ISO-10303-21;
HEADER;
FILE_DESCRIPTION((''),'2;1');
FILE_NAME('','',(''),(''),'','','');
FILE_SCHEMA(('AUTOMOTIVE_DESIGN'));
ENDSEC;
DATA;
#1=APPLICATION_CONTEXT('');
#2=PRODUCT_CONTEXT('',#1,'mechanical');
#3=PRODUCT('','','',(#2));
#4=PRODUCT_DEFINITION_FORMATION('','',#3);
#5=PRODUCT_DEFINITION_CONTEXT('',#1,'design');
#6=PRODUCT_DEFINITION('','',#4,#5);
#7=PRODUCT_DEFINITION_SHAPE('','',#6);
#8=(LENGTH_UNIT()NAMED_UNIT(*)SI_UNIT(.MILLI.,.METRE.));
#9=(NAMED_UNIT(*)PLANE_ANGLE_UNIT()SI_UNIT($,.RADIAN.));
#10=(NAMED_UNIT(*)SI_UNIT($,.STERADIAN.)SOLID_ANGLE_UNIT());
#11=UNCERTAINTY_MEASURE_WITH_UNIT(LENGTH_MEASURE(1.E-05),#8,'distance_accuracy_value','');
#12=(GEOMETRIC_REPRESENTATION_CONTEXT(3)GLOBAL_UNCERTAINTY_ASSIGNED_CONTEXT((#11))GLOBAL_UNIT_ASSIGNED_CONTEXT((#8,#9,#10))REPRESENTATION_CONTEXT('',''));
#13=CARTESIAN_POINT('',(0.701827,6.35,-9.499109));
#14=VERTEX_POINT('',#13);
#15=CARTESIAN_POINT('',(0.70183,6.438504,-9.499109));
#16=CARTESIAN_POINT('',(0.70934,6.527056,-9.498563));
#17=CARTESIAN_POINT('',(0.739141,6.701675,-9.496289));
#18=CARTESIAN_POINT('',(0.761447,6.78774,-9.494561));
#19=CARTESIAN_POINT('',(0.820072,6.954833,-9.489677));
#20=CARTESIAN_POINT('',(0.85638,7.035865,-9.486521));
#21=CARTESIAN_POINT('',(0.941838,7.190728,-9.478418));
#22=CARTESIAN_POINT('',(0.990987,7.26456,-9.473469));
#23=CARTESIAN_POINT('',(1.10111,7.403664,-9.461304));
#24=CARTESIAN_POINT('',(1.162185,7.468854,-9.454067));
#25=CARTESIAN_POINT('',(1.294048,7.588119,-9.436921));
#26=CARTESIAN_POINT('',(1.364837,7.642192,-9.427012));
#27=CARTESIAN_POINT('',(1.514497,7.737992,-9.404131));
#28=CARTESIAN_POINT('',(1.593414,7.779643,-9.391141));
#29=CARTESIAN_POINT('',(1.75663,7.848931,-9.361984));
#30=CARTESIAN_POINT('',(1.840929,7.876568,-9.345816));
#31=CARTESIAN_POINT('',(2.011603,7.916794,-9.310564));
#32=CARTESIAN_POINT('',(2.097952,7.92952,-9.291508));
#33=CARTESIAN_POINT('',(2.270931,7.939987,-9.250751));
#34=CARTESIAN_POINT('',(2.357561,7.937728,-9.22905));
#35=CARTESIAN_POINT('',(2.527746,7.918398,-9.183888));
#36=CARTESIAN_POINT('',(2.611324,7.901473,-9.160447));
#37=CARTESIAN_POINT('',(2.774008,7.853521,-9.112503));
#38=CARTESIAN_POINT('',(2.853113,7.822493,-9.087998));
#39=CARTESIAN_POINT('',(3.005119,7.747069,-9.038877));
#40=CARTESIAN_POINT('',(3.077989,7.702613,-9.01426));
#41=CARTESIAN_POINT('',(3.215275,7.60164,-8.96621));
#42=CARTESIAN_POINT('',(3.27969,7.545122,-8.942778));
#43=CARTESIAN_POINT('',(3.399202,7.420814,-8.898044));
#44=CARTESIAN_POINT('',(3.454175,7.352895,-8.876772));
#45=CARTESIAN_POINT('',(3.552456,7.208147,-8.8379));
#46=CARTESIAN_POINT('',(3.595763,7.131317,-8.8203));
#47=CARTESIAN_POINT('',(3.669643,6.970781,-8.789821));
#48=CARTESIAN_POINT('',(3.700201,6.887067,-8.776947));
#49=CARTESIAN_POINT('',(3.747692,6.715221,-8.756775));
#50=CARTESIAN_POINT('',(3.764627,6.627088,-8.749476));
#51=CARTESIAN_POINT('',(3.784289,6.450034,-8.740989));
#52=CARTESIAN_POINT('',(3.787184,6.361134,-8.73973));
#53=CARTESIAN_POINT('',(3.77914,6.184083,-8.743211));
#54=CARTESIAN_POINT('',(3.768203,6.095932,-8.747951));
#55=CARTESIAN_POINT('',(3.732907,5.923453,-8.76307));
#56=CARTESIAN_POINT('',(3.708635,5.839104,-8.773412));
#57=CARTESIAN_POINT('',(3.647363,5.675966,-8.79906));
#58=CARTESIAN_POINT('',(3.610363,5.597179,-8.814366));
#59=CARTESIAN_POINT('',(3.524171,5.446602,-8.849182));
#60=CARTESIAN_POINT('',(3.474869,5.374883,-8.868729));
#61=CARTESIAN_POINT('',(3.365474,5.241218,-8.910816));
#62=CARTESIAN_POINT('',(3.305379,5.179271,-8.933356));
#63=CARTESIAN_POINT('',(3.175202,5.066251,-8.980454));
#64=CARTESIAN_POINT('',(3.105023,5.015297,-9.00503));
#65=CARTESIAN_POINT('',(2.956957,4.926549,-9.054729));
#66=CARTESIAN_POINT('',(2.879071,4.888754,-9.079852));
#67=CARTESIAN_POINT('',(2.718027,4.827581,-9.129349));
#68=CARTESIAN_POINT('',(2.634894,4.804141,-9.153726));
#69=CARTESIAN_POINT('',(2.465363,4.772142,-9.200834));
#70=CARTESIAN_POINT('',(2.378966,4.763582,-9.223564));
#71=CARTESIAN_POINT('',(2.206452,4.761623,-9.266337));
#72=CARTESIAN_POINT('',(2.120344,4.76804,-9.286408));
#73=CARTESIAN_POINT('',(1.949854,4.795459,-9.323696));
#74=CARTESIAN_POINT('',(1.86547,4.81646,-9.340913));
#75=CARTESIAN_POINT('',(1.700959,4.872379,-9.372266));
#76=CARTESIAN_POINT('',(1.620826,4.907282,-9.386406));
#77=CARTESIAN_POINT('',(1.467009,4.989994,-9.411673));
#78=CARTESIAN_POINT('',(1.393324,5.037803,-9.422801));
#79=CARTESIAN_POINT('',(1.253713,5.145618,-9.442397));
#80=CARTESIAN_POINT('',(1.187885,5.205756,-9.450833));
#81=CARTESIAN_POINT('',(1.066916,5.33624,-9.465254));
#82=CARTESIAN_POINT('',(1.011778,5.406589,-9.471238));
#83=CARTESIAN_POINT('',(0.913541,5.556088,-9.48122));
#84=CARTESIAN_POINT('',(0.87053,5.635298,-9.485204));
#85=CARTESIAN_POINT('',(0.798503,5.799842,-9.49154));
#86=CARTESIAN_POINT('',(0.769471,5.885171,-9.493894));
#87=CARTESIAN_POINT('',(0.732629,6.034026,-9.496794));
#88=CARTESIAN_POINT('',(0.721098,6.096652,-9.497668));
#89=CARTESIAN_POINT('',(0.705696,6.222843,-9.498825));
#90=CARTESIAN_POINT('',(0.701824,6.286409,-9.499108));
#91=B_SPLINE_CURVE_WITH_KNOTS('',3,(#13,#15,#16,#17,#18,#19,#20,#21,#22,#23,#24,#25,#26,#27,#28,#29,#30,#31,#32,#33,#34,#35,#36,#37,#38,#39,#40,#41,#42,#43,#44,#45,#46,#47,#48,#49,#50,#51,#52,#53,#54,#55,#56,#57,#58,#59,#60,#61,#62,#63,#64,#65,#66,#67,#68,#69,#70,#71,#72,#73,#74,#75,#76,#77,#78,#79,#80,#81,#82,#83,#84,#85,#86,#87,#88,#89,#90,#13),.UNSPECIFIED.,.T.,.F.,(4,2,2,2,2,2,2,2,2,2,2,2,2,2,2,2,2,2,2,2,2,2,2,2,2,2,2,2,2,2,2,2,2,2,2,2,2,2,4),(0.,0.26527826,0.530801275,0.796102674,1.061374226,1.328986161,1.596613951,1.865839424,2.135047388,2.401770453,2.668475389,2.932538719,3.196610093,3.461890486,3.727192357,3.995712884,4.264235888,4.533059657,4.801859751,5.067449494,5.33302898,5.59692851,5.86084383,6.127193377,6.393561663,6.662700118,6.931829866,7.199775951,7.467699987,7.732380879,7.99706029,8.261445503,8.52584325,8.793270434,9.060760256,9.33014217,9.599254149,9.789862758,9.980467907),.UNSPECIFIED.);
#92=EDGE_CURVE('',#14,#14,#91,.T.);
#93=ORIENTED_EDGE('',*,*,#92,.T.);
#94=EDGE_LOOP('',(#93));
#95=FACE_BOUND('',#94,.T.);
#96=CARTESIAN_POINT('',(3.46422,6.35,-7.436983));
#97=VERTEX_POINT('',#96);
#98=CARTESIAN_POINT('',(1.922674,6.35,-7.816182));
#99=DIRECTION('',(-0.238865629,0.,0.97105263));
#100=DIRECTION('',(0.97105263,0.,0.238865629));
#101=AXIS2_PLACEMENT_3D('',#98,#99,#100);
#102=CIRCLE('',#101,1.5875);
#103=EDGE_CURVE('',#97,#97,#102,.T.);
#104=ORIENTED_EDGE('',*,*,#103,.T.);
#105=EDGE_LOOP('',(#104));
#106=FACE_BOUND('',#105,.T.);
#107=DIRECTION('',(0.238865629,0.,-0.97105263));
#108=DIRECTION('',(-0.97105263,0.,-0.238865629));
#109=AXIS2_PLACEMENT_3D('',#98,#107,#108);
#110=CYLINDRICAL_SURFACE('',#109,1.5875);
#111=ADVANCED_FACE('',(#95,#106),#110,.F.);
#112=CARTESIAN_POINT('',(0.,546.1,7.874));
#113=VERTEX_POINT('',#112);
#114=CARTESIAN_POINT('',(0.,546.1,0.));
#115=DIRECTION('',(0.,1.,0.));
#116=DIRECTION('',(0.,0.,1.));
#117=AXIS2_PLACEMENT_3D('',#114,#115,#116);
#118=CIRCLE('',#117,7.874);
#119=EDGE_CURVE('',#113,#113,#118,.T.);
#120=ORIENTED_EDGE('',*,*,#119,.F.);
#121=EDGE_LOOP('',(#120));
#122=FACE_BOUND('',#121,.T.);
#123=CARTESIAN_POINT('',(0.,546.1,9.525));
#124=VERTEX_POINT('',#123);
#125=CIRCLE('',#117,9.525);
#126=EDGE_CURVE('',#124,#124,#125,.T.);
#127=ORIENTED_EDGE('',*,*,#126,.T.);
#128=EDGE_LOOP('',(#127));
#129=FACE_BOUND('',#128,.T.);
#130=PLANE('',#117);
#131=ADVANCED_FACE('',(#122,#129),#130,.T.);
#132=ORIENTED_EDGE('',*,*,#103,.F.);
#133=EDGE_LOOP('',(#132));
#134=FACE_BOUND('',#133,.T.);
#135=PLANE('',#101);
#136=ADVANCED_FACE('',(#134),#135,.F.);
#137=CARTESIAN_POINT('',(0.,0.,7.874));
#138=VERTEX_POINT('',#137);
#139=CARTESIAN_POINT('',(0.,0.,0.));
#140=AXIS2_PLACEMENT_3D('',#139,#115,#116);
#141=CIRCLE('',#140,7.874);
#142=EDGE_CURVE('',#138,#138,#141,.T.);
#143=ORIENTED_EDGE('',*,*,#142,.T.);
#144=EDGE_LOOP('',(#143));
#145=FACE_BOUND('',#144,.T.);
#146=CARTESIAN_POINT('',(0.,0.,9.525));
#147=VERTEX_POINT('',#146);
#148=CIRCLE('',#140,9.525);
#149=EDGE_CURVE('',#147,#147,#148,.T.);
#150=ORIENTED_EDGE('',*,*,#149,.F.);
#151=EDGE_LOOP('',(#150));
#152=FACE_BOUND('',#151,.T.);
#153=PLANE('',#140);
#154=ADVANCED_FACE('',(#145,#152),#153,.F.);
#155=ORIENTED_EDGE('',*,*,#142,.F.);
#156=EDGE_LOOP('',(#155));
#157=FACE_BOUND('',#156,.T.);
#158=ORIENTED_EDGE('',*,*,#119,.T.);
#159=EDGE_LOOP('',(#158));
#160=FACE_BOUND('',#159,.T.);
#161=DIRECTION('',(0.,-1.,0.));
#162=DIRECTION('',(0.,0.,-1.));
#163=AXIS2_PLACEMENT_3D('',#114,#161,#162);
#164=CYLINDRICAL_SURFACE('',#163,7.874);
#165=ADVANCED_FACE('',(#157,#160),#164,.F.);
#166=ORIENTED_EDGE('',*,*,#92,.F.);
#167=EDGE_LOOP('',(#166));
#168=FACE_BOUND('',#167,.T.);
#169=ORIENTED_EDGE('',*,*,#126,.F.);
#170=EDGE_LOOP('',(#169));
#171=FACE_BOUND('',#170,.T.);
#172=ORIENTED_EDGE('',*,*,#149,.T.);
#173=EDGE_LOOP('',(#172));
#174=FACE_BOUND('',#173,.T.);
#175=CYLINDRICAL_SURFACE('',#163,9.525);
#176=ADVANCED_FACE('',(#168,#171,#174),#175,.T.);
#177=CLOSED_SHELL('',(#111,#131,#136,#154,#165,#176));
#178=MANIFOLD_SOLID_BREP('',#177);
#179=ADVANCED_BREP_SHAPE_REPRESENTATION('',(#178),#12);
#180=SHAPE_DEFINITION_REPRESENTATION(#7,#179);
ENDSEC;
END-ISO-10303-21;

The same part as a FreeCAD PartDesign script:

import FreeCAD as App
import Part
import Sketcher

V = App.Vector
Q = App.Units.Quantity

doc = App.newDocument("Part")
body = doc.addObject("PartDesign::Body", "Body")

# Sketch on XZ plane
sketch1 = doc.addObject("Sketcher::SketchObject", "Sketch")
body.addObject(sketch1)
sketch1.AttachmentSupport = (doc.XZ_Plane, [""])
sketch1.MapMode = "FlatFace"
sketch1.addGeometry([
    Part.Circle(V(0, 0, 0), V(0, 0, 1), 10),
    Part.Circle(V(0, 0, 0), V(0, 0, 1), 8),
], False)
sketch1.addConstraint([
    Sketcher.Constraint("Coincident", 0, 3, -1, 1),
    Sketcher.Constraint("Coincident", 1, 3, -1, 1),
    Sketcher.Constraint("Diameter", 0, Q("0.75 in")),
    Sketcher.Constraint("Diameter", 1, Q("0.62 in")),
])
pad1 = doc.addObject("PartDesign::Pad", "Pad")
body.addObject(pad1)
pad1.Profile = sketch1
pad1.Length = Q("21.5 in")
pad1.Reversed = True

# Sketch on an angled plane
sketch2 = doc.addObject("Sketcher::SketchObject", "Sketch001")
body.addObject(sketch2)
sketch2.Placement = App.Placement(V(603.369857, -776.603382, -147.728207), App.Rotation(V(0.971052631, 0, 0.238865629), V(0, 1.000000001, 0), V(-0.238865629, 0, 0.971052631), "ZXY"))
sketch2.addGeometry(Part.Circle(V(-550.6, 783, 0), V(0, 0, 1), 1.6), False)
sketch2.addConstraint([
    Sketcher.Constraint("Diameter", 0, Q("0.125 in")),
    Sketcher.Constraint("DistanceX", 0, 3, -1, 1, 550.616696),
    Sketcher.Constraint("DistanceY", -1, 1, 0, 3, 782.953384),
])
pocket1 = doc.addObject("PartDesign::Pocket", "Pocket")
body.addObject(pocket1)
pocket1.Profile = sketch2
pocket1.Length = Q("11.005 in")
pocket1.Reversed = True

doc.recompute()
